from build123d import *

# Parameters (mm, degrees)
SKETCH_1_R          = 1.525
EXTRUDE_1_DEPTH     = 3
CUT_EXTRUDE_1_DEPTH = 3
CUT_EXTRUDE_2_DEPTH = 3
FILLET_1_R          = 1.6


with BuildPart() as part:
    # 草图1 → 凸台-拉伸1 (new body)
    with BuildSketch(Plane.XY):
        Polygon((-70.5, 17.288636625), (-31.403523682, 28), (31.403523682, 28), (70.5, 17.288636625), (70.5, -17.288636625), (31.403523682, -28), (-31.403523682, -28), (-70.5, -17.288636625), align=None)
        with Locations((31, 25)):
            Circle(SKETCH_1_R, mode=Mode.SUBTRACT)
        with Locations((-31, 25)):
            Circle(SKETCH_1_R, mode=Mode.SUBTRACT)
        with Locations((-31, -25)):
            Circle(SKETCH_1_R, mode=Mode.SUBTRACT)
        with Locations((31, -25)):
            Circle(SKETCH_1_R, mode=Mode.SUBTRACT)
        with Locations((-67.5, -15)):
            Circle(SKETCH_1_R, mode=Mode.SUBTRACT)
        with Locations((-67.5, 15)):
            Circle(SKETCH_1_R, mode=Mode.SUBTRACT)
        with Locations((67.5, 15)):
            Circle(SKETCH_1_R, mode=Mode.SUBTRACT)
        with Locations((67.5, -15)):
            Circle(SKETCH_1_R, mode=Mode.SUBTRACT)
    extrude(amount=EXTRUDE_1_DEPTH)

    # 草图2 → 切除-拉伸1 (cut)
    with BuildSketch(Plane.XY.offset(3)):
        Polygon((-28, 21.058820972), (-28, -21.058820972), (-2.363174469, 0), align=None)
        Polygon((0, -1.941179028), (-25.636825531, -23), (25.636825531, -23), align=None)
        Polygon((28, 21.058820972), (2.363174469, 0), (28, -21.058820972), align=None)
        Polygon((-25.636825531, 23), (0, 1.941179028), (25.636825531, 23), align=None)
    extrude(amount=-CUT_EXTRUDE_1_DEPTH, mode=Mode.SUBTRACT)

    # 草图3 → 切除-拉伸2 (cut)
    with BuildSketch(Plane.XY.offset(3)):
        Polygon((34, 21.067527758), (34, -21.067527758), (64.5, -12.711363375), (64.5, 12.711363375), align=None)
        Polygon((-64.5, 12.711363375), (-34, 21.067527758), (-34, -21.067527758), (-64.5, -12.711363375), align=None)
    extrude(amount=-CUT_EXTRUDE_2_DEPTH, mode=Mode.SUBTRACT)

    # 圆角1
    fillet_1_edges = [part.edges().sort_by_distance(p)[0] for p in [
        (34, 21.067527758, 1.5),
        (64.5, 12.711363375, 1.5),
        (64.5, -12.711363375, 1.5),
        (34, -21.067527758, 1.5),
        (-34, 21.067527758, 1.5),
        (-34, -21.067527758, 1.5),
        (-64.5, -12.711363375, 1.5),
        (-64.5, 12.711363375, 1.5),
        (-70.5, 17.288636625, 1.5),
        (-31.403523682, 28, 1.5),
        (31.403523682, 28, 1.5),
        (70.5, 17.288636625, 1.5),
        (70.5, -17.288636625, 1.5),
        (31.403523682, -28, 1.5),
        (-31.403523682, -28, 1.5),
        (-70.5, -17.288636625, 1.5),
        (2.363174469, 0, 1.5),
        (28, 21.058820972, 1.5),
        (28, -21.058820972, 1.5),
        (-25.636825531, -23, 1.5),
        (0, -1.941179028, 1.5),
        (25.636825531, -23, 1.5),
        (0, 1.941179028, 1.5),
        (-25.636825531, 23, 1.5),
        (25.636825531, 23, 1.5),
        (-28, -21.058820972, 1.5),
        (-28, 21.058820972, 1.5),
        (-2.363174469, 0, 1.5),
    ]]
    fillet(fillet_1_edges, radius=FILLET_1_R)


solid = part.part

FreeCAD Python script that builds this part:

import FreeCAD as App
import Part
import Sketcher
Q = App.Units.Quantity


def edges_at(feature, points):
    """Names of the edges that pass closest to the given points."""
    edges = feature.Shape.Edges
    near = lambda p: min(range(len(edges)), key=lambda i: edges[i].distToShape(Part.Vertex(*p))[0])
    return sorted({f"Edge{near(p) + 1}" for p in points})


def add_polygon(sketch, points):
    """Adds a closed chain of lines whose ends are joined by coincident constraints."""
    first, n = sketch.GeometryCount, len(points)
    for a, b in zip(points, points[1:] + points[:1]):
        sketch.addGeometry(Part.LineSegment(App.Vector(*a, 0), App.Vector(*b, 0)), False)
    for i in range(n):
        sketch.addConstraint(Sketcher.Constraint("Coincident", first + i, 2, first + (i + 1) % n, 1))

doc = App.newDocument("Part")
body = doc.addObject("PartDesign::Body", "Body")

# Sketch on XY plane
sketch1 = body.newObject("Sketcher::SketchObject", "Sketch")
sketch1.AttachmentSupport = (doc.getObject("XY_Plane"), [""])
sketch1.MapMode = "FlatFace"
add_polygon(sketch1, [(-31.4, 28), (-70.5, 17.3), (-70.5, -17.3), (-31.4, -28), (31.4, -28), (70.5, -17.3), (70.5, 17.3), (31.4, 28)])  # lines 0-7
sketch1.addGeometry(Part.Circle(App.Vector(67.5, -15, 0), App.Vector(0, 0, 1), 1.5), False)  # 8
sketch1.addGeometry(Part.Circle(App.Vector(31, -25, 0), App.Vector(0, 0, 1), 1.5), False)  # 9
sketch1.addGeometry(Part.Circle(App.Vector(-31, -25, 0), App.Vector(0, 0, 1), 1.5), False)  # 10
sketch1.addGeometry(Part.Circle(App.Vector(-67.5, -15, 0), App.Vector(0, 0, 1), 1.5), False)  # 11
sketch1.addGeometry(Part.Circle(App.Vector(67.5, 15, 0), App.Vector(0, 0, 1), 1.5), False)  # 12
sketch1.addGeometry(Part.Circle(App.Vector(31, 25, 0), App.Vector(0, 0, 1), 1.5), False)  # 13
sketch1.addGeometry(Part.Circle(App.Vector(-31, 25, 0), App.Vector(0, 0, 1), 1.5), False)  # 14
sketch1.addGeometry(Part.Circle(App.Vector(-67.5, 15, 0), App.Vector(0, 0, 1), 1.5), False)  # 15
sketch1.addConstraint(Sketcher.Constraint("Vertical", 1))
sketch1.addConstraint(Sketcher.Constraint("Horizontal", 3))
sketch1.addConstraint(Sketcher.Constraint("Vertical", 5))
sketch1.addConstraint(Sketcher.Constraint("Horizontal", 7))
sketch1.addConstraint(Sketcher.Constraint("Equal", 8, 9))
sketch1.addConstraint(Sketcher.Constraint("Equal", 9, 10))
sketch1.addConstraint(Sketcher.Constraint("Equal", 10, 11))
sketch1.addConstraint(Sketcher.Constraint("Equal", 11, 12))
sketch1.addConstraint(Sketcher.Constraint("Equal", 12, 13))
sketch1.addConstraint(Sketcher.Constraint("Equal", 13, 14))
sketch1.addConstraint(Sketcher.Constraint("Equal", 14, 15))
sketch1.addConstraint(Sketcher.Constraint("Symmetric", 11, 3, 12, 3, -1, 1))
sketch1.addConstraint(Sketcher.Constraint("Symmetric", 10, 3, 13, 3, -1, 1))
sketch1.addConstraint(Sketcher.Constraint("Symmetric", 9, 3, 14, 3, -1, 1))
sketch1.addConstraint(Sketcher.Constraint("Symmetric", 8, 3, 15, 3, -1, 1))
sketch1.addConstraint(Sketcher.Constraint("Symmetric", 0, 2, 4, 2, -1, 1))
sketch1.addConstraint(Sketcher.Constraint("Symmetric", 2, 2, 6, 2, -1, 1))
sketch1.addConstraint(Sketcher.Constraint("Symmetric", 9, 3, 10, 3, -2))
sketch1.addConstraint(Sketcher.Constraint("Symmetric", 8, 3, 11, 3, -2))
sketch1.addConstraint(Sketcher.Constraint("Parallel", 0, 4))
sketch1.addConstraint(Sketcher.Constraint("Parallel", 2, 6))
sketch1.addConstraint(Sketcher.Constraint("Horizontal", 1, 2, 4, 2))
sketch1.addConstraint(Sketcher.Constraint("Vertical", 3, 2, 6, 2))
sketch1.addConstraint(Sketcher.Constraint("Diameter", 8, Q("3.05 mm")))
sketch1.addConstraint(Sketcher.Constraint("DistanceY", 8, 3, -1, 1, Q("15 mm")))
sketch1.addConstraint(Sketcher.Constraint("DistanceX", -1, 1, 9, 3, Q("31 mm")))
sketch1.addConstraint(Sketcher.Constraint("DistanceY", 9, 3, -1, 1, Q("25 mm")))
sketch1.addConstraint(Sketcher.Constraint("DistanceY", 2, 2, -1, 1, Q("28 mm")))
sketch1.addConstraint(Sketcher.Constraint("DistanceX", 11, 3, 8, 3, Q("135 mm")))
sketch1.addConstraint(Sketcher.Constraint("DistanceX", 0, 2, 15, 3, Q("3 mm")))
sketch1.addConstraint(Sketcher.Constraint("Distance", 0, Q("40.537239 mm")))
sketch1.addConstraint(Sketcher.Constraint("DistanceX", 3, 1, 3, 2, Q("62.807047 mm")))
pad1 = body.newObject("PartDesign::Pad", "Pad")
pad1.Profile = sketch1
pad1.Length = 3

# Sketch on XY plane
sketch2 = body.newObject("Sketcher::SketchObject", "Sketch001")
sketch2.AttachmentSupport = (doc.getObject("XY_Plane"), [""])
sketch2.MapMode = "FlatFace"
sketch2.AttachmentOffset = App.Placement(App.Vector(0, 0, 3), App.Rotation())
add_polygon(sketch2, [(-28, 21), (-28, -21), (-2, 0)])  # lines 0-2
add_polygon(sketch2, [(0, -2), (-26, -23), (26, -23)])  # lines 3-5
add_polygon(sketch2, [(28, 21), (2, 0), (28, -21)])  # lines 6-8
add_polygon(sketch2, [(-26, 23), (0, 2), (26, 23)])  # lines 9-11
sketch2.addConstraint(Sketcher.Constraint("Vertical", 0))
sketch2.addConstraint(Sketcher.Constraint("Horizontal", 4))
sketch2.addConstraint(Sketcher.Constraint("Vertical", 8))
sketch2.addConstraint(Sketcher.Constraint("Horizontal", 11))
sketch2.addConstraint(Sketcher.Constraint("Symmetric", 1, 2, 6, 2, -1, 1))
sketch2.addConstraint(Sketcher.Constraint("Symmetric", 2, 2, 7, 2, -1, 1))
sketch2.addConstraint(Sketcher.Constraint("Symmetric", 5, 2, 9, 2, -1, 1))
sketch2.addConstraint(Sketcher.Constraint("Symmetric", 3, 2, 10, 2, -1, 1))
sketch2.addConstraint(Sketcher.Constraint("PointOnObject", 1, 2, -1))
sketch2.addConstraint(Sketcher.Constraint("PointOnObject", 5, 2, -2))
sketch2.addConstraint(Sketcher.Constraint("Parallel", 1, 3))
sketch2.addConstraint(Sketcher.Constraint("Parallel", 2, 5))
sketch2.addConstraint(Sketcher.Constraint("Parallel", 3, 6))
sketch2.addConstraint(Sketcher.Constraint("Parallel", 7, 9))
sketch2.addConstraint(Sketcher.Constraint("Horizontal", 0, 2, 7, 2))
sketch2.addConstraint(Sketcher.Constraint("Equal", 2, 3))
sketch2.addConstraint(Sketcher.Constraint("DistanceX", 0, 2, -1, 1, Q("28 mm")))
sketch2.addConstraint(Sketcher.Constraint("DistanceY", 3, 2, -1, 1, Q("23 mm")))
sketch2.addConstraint(Sketcher.Constraint("DistanceX", 4, 1, 4, 2, Q("51.273651 mm")))
sketch2.addConstraint(Sketcher.Constraint("DistanceY", 0, 2, 0, 1, Q("42.117642 mm")))
pocket1 = body.newObject("PartDesign::Pocket", "Pocket")
pocket1.Profile = sketch2
pocket1.Length = 3

# Sketch on XY plane
sketch3 = body.newObject("Sketcher::SketchObject", "Sketch002")
sketch3.AttachmentSupport = (doc.getObject("XY_Plane"), [""])
sketch3.MapMode = "FlatFace"
sketch3.AttachmentOffset = App.Placement(App.Vector(0, 0, 3), App.Rotation())
add_polygon(sketch3, [(34, 21), (34, -21), (64, -13), (64, 13)])  # lines 0-3
add_polygon(sketch3, [(-34, 21), (-64, 13), (-64, -13), (-34, -21)])  # lines 4-7
sketch3.addConstraint(Sketcher.Constraint("Vertical", 0))
sketch3.addConstraint(Sketcher.Constraint("Vertical", 2))
sketch3.addConstraint(Sketcher.Constraint("Vertical", 5))
sketch3.addConstraint(Sketcher.Constraint("Vertical", 7))
sketch3.addConstraint(Sketcher.Constraint("Symmetric", 1, 2, 4, 2, -1, 1))
sketch3.addConstraint(Sketcher.Constraint("Symmetric", 3, 2, 6, 2, -1, 1))
sketch3.addConstraint(Sketcher.Constraint("Parallel", 1, 4))
sketch3.addConstraint(Sketcher.Constraint("Parallel", 3, 6))
sketch3.addConstraint(Sketcher.Constraint("Horizontal", 2, 2, 4, 2))
sketch3.addConstraint(Sketcher.Constraint("Horizontal", 0, 2, 6, 2))
sketch3.addConstraint(Sketcher.Constraint("DistanceX", -1, 1, 0, 2, Q("34 mm")))
sketch3.addConstraint(Sketcher.Constraint("DistanceX", 4, 2, 2, 2, Q("129 mm")))
sketch3.addConstraint(Sketcher.Constraint("Distance", 1, Q("31.62397 mm")))
sketch3.addConstraint(Sketcher.Constraint("DistanceY", 0, 2, 0, 1, Q("42.135056 mm")))
pocket2 = body.newObject("PartDesign::Pocket", "Pocket001")
pocket2.Profile = sketch3
pocket2.Length = 3
doc.recompute()

fillet = body.newObject("PartDesign::Fillet", "Fillet")
fillet.Base = (pocket2, edges_at(pocket2, [
    (34, 21.068, 1.5),
    (64.5, 12.711, 1.5),
    (64.5, -12.711, 1.5),
    (34, -21.068, 1.5),
    (-34, 21.068, 1.5),
    (-34, -21.068, 1.5),
    (-64.5, -12.711, 1.5),
    (-64.5, 12.711, 1.5),
    (-70.5, 17.289, 1.5),
    (-31.404, 28, 1.5),
    (31.404, 28, 1.5),
    (70.5, 17.289, 1.5),
    (70.5, -17.289, 1.5),
    (31.404, -28, 1.5),
    (-31.404, -28, 1.5),
    (-70.5, -17.289, 1.5),
    (2.363, 0, 1.5),
    (28, 21.059, 1.5),
    (28, -21.059, 1.5),
    (-25.637, -23, 1.5),
    (0, -1.941, 1.5),
    (25.637, -23, 1.5),
    (0, 1.941, 1.5),
    (-25.637, 23, 1.5),
    (25.637, 23, 1.5),
    (-28, -21.059, 1.5),
    (-28, 21.059, 1.5),
    (-2.363, 0, 1.5),
]))
fillet.Radius = 1.6

doc.recompute()
